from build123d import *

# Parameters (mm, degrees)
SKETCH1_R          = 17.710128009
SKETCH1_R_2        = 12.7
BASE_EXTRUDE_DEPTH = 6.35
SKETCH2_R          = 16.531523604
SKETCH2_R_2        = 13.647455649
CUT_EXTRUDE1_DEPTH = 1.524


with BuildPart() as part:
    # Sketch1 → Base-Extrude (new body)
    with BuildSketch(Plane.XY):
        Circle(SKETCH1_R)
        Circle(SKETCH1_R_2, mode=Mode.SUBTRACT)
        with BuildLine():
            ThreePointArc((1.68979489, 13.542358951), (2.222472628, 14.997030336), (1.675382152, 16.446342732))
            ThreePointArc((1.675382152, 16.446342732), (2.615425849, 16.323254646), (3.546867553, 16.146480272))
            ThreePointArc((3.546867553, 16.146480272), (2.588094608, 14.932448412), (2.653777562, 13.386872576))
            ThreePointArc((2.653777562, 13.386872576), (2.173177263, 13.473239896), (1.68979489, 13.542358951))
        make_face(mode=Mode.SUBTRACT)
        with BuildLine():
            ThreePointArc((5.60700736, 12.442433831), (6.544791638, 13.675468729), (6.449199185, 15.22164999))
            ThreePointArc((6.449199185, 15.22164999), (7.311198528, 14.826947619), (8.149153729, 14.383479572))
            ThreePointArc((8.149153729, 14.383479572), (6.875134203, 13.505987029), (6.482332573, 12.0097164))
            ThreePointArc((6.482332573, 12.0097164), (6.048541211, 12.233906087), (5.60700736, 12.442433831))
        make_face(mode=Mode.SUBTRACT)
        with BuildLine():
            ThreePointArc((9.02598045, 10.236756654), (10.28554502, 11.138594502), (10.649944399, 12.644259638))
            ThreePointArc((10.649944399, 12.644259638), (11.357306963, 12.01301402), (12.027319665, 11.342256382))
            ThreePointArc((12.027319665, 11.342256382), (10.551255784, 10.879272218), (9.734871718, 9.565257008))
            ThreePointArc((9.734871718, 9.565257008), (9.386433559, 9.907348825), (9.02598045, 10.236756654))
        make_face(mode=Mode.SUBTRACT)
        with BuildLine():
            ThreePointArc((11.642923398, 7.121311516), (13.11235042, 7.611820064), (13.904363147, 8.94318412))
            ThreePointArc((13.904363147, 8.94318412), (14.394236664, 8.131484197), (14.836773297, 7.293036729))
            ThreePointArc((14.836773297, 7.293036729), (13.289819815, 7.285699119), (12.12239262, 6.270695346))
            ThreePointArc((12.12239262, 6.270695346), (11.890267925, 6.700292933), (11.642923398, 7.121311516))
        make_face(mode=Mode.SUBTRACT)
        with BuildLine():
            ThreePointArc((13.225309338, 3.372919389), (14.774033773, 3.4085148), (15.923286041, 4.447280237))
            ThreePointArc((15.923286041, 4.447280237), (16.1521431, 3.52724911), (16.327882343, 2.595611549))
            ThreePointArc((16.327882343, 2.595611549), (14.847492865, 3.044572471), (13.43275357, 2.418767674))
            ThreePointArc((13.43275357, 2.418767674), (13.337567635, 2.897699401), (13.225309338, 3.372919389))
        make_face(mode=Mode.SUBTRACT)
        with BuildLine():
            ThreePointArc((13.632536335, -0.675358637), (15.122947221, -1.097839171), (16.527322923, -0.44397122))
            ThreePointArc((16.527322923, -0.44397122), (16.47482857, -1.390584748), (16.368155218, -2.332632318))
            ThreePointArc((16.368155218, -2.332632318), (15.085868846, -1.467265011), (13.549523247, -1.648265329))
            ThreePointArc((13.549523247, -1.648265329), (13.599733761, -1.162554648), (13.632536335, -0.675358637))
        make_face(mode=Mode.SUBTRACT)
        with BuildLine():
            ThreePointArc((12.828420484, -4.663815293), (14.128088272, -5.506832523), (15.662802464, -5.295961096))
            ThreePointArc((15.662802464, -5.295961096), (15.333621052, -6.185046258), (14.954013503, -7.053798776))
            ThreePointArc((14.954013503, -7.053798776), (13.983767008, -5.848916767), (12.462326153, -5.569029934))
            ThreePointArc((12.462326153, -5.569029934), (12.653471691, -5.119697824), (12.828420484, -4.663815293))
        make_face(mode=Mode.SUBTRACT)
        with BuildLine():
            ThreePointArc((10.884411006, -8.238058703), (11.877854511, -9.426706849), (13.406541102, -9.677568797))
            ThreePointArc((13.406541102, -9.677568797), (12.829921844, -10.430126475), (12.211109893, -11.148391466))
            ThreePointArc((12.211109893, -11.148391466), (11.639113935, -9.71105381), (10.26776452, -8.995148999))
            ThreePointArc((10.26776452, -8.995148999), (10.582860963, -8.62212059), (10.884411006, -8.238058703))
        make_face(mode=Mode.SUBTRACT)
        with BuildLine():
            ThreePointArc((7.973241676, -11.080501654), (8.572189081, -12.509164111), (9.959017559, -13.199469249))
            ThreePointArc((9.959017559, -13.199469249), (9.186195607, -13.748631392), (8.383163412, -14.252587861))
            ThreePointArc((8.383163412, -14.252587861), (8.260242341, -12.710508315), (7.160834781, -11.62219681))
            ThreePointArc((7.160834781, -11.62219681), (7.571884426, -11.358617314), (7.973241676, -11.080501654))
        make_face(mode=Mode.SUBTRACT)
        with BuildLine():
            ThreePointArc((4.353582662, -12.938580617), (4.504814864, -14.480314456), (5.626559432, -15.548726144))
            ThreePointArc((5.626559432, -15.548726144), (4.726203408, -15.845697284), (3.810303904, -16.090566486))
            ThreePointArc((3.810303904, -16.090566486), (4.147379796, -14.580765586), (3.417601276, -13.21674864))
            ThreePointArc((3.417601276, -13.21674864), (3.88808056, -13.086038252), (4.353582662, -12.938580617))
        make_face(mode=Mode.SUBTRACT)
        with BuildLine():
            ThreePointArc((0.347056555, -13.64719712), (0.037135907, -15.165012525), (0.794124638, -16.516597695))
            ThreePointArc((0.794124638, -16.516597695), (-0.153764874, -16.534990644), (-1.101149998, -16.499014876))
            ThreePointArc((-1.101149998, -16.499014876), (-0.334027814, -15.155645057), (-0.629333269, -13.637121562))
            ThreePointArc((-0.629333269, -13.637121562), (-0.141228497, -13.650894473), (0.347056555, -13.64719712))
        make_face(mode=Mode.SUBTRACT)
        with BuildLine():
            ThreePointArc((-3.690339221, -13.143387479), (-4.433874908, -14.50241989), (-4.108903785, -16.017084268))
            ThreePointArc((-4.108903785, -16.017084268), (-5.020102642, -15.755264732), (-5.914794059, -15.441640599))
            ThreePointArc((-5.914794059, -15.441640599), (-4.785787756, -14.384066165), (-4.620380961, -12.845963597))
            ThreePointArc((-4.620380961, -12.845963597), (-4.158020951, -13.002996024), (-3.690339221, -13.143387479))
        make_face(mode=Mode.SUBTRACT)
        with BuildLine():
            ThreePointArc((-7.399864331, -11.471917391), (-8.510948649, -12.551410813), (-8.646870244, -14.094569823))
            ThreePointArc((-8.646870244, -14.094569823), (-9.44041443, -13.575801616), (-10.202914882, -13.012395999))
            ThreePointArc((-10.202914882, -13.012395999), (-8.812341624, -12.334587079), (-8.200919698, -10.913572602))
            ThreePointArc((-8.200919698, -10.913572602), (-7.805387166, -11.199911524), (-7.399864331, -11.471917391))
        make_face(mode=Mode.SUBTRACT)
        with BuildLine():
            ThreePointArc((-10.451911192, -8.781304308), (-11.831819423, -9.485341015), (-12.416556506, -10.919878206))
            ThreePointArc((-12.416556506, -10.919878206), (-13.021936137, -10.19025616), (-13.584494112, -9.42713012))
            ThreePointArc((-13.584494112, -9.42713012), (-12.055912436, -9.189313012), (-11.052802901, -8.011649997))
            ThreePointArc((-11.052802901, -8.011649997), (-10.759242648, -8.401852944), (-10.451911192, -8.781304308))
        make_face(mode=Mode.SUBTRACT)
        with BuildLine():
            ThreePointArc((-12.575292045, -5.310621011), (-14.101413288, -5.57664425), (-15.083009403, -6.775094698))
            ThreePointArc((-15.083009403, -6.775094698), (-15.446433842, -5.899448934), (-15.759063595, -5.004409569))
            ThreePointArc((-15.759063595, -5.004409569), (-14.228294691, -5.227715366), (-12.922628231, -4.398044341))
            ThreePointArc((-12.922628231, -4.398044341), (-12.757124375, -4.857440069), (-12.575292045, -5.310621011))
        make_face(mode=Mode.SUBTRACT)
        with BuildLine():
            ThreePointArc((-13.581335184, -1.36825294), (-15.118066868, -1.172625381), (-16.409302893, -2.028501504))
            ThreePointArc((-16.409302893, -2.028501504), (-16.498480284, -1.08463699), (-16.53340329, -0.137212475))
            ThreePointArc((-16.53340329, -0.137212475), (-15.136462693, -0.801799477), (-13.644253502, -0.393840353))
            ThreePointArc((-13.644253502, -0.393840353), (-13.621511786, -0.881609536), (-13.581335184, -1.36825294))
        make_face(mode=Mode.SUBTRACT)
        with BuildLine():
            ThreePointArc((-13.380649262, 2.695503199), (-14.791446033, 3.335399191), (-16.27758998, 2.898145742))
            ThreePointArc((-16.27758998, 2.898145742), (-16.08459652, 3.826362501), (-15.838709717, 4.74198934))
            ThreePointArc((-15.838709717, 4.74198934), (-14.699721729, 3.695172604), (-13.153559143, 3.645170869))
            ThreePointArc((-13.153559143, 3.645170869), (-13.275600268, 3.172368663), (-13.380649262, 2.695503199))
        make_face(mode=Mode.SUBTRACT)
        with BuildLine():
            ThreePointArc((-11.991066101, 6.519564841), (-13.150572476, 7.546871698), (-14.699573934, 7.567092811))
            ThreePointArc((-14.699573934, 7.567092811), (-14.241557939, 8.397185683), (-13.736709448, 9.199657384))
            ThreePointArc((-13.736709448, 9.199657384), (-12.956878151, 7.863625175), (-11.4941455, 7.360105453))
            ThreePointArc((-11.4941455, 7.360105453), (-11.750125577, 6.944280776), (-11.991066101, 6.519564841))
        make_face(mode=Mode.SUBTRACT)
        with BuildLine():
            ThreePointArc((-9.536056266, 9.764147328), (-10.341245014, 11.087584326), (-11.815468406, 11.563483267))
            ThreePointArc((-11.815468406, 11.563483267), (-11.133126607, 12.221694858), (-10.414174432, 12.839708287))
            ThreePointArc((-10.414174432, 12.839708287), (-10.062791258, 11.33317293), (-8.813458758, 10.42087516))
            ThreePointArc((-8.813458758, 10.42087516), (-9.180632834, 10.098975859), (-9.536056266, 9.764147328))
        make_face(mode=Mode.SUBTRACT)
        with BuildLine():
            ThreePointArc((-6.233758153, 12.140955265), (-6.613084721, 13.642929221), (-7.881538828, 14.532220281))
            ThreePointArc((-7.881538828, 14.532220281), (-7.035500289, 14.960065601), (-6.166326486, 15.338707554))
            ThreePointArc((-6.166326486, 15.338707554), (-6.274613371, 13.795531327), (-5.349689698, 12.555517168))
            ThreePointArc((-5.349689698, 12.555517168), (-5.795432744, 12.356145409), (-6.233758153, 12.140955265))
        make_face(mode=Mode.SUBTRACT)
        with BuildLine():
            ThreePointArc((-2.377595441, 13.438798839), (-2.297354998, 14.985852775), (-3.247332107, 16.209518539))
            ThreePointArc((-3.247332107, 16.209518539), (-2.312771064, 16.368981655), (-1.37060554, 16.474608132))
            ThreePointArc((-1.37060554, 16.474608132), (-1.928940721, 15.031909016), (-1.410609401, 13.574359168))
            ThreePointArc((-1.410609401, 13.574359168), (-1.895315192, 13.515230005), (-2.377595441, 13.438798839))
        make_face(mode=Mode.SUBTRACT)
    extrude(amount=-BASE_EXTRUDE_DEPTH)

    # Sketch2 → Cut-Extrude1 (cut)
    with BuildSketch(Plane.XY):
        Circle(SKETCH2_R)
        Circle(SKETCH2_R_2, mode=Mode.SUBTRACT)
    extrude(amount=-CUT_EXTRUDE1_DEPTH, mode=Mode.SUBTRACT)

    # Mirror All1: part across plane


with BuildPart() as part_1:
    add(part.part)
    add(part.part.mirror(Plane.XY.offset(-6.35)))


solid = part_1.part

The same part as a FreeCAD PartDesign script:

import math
import FreeCAD as App
import Part
import Sketcher
from FreeCAD import Vector
Q = App.Units.Quantity

doc = App.newDocument("Part")
body = doc.addObject("PartDesign::Body", "Body")

# Sketch on XY plane
sketch1 = body.newObject("Sketcher::SketchObject", "Sketch")
sketch1.AttachmentSupport = (doc.getObject("XY_Plane"), [""])
sketch1.MapMode = "FlatFace"
sketch1.addGeometry([
    Part.Circle(Vector(0, 0, 0), Vector(0, 0, 1), 17.7),  # 0
    Part.ArcOfCircle(Part.Circle(Vector(0, 0, 0), Vector(0, 0, 1), 13.6), math.radians(-126.93), math.radians(-122.83)),  # 1
    Part.ArcOfCircle(Part.Circle(Vector(-6.5, -13.5, 0), Vector(0, 0, 1), 2.2), math.radians(114), math.radians(195)),  # 2
    Part.ArcOfCircle(Part.Circle(Vector(0, 0, 0), Vector(0, 0, 1), 16.5), math.radians(-128.1), math.radians(-121.53)),  # 3
    Part.ArcOfCircle(Part.Circle(Vector(-10.4, -10.8, 0), Vector(0, 0, 1), 2.2), math.radians(-84), math.radians(-3)),  # 4
    Part.ArcOfCircle(Part.Circle(Vector(0, 0, 0), Vector(0, 0, 1), 13.6), math.radians(-144.07), math.radians(-139.97)),  # 5
    Part.ArcOfCircle(Part.Circle(Vector(-10.2, -11, 0), Vector(0, 0, 1), 2.2), math.radians(97), math.radians(178)),  # 6
    Part.ArcOfCircle(Part.Circle(Vector(0, 0, 0), Vector(0, 0, 1), 16.5), math.radians(-145.25), math.radians(-138.67)),  # 7
    Part.ArcOfCircle(Part.Circle(Vector(-13.1, -7.2, 0), Vector(0, 0, 1), 2.2), math.radians(-102), math.radians(-20)),  # 8
    Part.ArcOfCircle(Part.Circle(Vector(0, 0, 0), Vector(0, 0, 1), 13.6), math.radians(-109.78), math.radians(-105.68)),  # 9
    Part.ArcOfCircle(Part.Circle(Vector(-2.2, -14.8, 0), Vector(0, 0, 1), 2.2), math.radians(131), math.radians(213)),  # 10
    Part.ArcOfCircle(Part.Circle(Vector(0, 0, 0), Vector(0, 0, 1), 16.5), math.radians(-110.96), math.radians(-104.39)),  # 11
    Part.ArcOfCircle(Part.Circle(Vector(-6.8, -13.4, 0), Vector(0, 0, 1), 2.2), math.radians(-67), math.radians(14)),  # 12
    Part.ArcOfCircle(Part.Circle(Vector(0, 0, 0), Vector(0, 0, 1), 13.6), math.radians(-92.64), math.radians(-88.54)),  # 13
    Part.ArcOfCircle(Part.Circle(Vector(2.2, -14.8, 0), Vector(0, 0, 1), 2.2), math.radians(148), math.radians(230)),  # 14
    Part.ArcOfCircle(Part.Circle(Vector(0, 0, 0), Vector(0, 0, 1), 16.5), math.radians(-93.82), math.radians(-87.25)),  # 15
    Part.ArcOfCircle(Part.Circle(Vector(-2.5, -14.8, 0), Vector(0, 0, 1), 2.2), math.radians(-50), math.radians(31)),  # 16
    Part.ArcOfCircle(Part.Circle(Vector(0, 0, 0), Vector(0, 0, 1), 13.6), math.radians(-161.21), math.radians(-157.11)),  # 17
    Part.ArcOfCircle(Part.Circle(Vector(-13, -7.5, 0), Vector(0, 0, 1), 2.2), math.radians(79), math.radians(161)),  # 18
    Part.ArcOfCircle(Part.Circle(Vector(0, 0, 0), Vector(0, 0, 1), 16.5), math.radians(-162.39), math.radians(-155.82)),  # 19
    Part.ArcOfCircle(Part.Circle(Vector(-14.7, -3.1, 0), Vector(0, 0, 1), 2.2), math.radians(-119), math.radians(-37)),  # 20
    Part.ArcOfCircle(Part.Circle(Vector(0, 0, 0), Vector(0, 0, 1), 13.6), math.radians(-178.36), math.radians(-174.26)),  # 21
    Part.ArcOfCircle(Part.Circle(Vector(-14.6, -3.3, 0), Vector(0, 0, 1), 2.2), math.radians(62), math.radians(144)),  # 22
    Part.ArcOfCircle(Part.Circle(Vector(0, 0, 0), Vector(0, 0, 1), 16.5), math.radians(-179.53), math.radians(-172.96)),  # 23
    Part.ArcOfCircle(Part.Circle(Vector(-14.9, 1.4, 0), Vector(0, 0, 1), 2.2), math.radians(-136), math.radians(-54)),  # 24
    Part.ArcOfCircle(Part.Circle(Vector(0, 0, 0), Vector(0, 0, 1), 13.6), math.radians(-75.5), math.radians(-71.4)),  # 25
    Part.ArcOfCircle(Part.Circle(Vector(6.5, -13.5, 0), Vector(0, 0, 1), 2.2), math.radians(165), math.radians(247)),  # 26
    Part.ArcOfCircle(Part.Circle(Vector(0, 0, 0), Vector(0, 0, 1), 16.5), math.radians(-76.67), math.radians(-70.1)),  # 27
    Part.ArcOfCircle(Part.Circle(Vector(1.9, -14.9, 0), Vector(0, 0, 1), 2.2), math.radians(-33), math.radians(49)),  # 28
    Part.ArcOfCircle(Part.Circle(Vector(0, 0, 0), Vector(0, 0, 1), 13.6), math.radians(-58.36), math.radians(-54.26)),  # 29
    Part.ArcOfCircle(Part.Circle(Vector(10.2, -11, 0), Vector(0, 0, 1), 2.2), math.radians(-178), math.radians(-96)),  # 30
    Part.ArcOfCircle(Part.Circle(Vector(0, 0, 0), Vector(0, 0, 1), 16.5), math.radians(-59.53), math.radians(-52.96)),  # 31
    Part.ArcOfCircle(Part.Circle(Vector(6.2, -13.6, 0), Vector(0, 0, 1), 2.2), math.radians(-16), math.radians(66)),  # 32
    Part.ArcOfCircle(Part.Circle(Vector(0, 0, 0), Vector(0, 0, 1), 13.6), math.radians(-41.21), math.radians(-37.11)),  # 33
    Part.ArcOfCircle(Part.Circle(Vector(13, -7.5, 0), Vector(0, 0, 1), 2.2), math.radians(-161), math.radians(-79)),  # 34
    Part.ArcOfCircle(Part.Circle(Vector(0, 0, 0), Vector(0, 0, 1), 16.5), math.radians(-42.39), math.radians(-35.82)),  # 35
    Part.ArcOfCircle(Part.Circle(Vector(10, -11.2, 0), Vector(0, 0, 1), 2.2), math.radians(1), math.radians(83)),  # 36
    Part.ArcOfCircle(Part.Circle(Vector(0, 0, 0), Vector(0, 0, 1), 13.6), math.radians(-24.07), math.radians(-19.97)),  # 37
    Part.ArcOfCircle(Part.Circle(Vector(14.6, -3.3, 0), Vector(0, 0, 1), 2.2), math.radians(-143), math.radians(-62)),  # 38
    Part.ArcOfCircle(Part.Circle(Vector(0, 0, 0), Vector(0, 0, 1), 16.5), math.radians(-25.25), math.radians(-18.67)),  # 39
    Part.ArcOfCircle(Part.Circle(Vector(12.8, -7.8, 0), Vector(0, 0, 1), 2.2), math.radians(18), math.radians(100)),  # 40
    Part.ArcOfCircle(Part.Circle(Vector(0, 0, 0), Vector(0, 0, 1), 13.6), math.radians(-6.93), math.radians(-2.83)),  # 41
    Part.ArcOfCircle(Part.Circle(Vector(14.9, 1.1, 0), Vector(0, 0, 1), 2.2), math.radians(-126), math.radians(-45)),  # 42
    Part.ArcOfCircle(Part.Circle(Vector(0, 0, 0), Vector(0, 0, 1), 16.5), math.radians(-8.1), math.radians(-1.53)),  # 43
    Part.ArcOfCircle(Part.Circle(Vector(14.6, -3.6, 0), Vector(0, 0, 1), 2.2), math.radians(36), math.radians(117)),  # 44
    Part.ArcOfCircle(Part.Circle(Vector(0, 0, 0), Vector(0, 0, 1), 13.6), math.radians(164.5), math.radians(168.6)),  # 45
    Part.ArcOfCircle(Part.Circle(Vector(-14.9, 1.1, 0), Vector(0, 0, 1), 2.2), math.radians(45), math.radians(127)),  # 46
    Part.ArcOfCircle(Part.Circle(Vector(0, 0, 0), Vector(0, 0, 1), 16.5), math.radians(163.33), math.radians(169.9)),  # 47
    Part.ArcOfCircle(Part.Circle(Vector(-13.9, 5.8, 0), Vector(0, 0, 1), 2.2), math.radians(-153), math.radians(-71)),  # 48
    Part.ArcOfCircle(Part.Circle(Vector(0, 0, 0), Vector(0, 0, 1), 13.6), math.radians(147.36), math.radians(151.46)),  # 49
    Part.ArcOfCircle(Part.Circle(Vector(-14, 5.5, 0), Vector(0, 0, 1), 2.2), math.radians(28), math.radians(110)),  # 50
    Part.ArcOfCircle(Part.Circle(Vector(0, 0, 0), Vector(0, 0, 1), 16.5), math.radians(146.18), math.radians(152.75)),  # 51
    Part.ArcOfCircle(Part.Circle(Vector(-11.5, 9.6, 0), Vector(0, 0, 1), 2.2), math.radians(-170), math.radians(-89)),  # 52
    Part.ArcOfCircle(Part.Circle(Vector(0, 0, 0), Vector(0, 0, 1), 13.6), math.radians(130.22), math.radians(134.32)),  # 53
    Part.ArcOfCircle(Part.Circle(Vector(-11.7, 9.3, 0), Vector(0, 0, 1), 2.2), math.radians(11), math.radians(93)),  # 54
    Part.ArcOfCircle(Part.Circle(Vector(0, 0, 0), Vector(0, 0, 1), 16.5), math.radians(129.04), math.radians(135.61)),  # 55
    Part.ArcOfCircle(Part.Circle(Vector(-8.2, 12.6, 0), Vector(0, 0, 1), 2.2), math.radians(173), math.radians(254)),  # 56
    Part.ArcOfCircle(Part.Circle(Vector(0, 0, 0), Vector(0, 0, 1), 13.6), math.radians(113.07), math.radians(117.17)),  # 57
    Part.ArcOfCircle(Part.Circle(Vector(-8.4, 12.4, 0), Vector(0, 0, 1), 2.2), math.radians(-6), math.radians(75)),  # 58
    Part.ArcOfCircle(Part.Circle(Vector(0, 0, 0), Vector(0, 0, 1), 16.5), math.radians(111.9), math.radians(118.47)),  # 59
    Part.ArcOfCircle(Part.Circle(Vector(-4.1, 14.4, 0), Vector(0, 0, 1), 2.2), math.radians(156), math.radians(237)),  # 60
    Part.ArcOfCircle(Part.Circle(Vector(0, 0, 0), Vector(0, 0, 1), 13.6), math.radians(95.93), math.radians(100.03)),  # 61
    Part.ArcOfCircle(Part.Circle(Vector(-4.4, 14.3, 0), Vector(0, 0, 1), 2.2), math.radians(-23), math.radians(58)),  # 62
    Part.ArcOfCircle(Part.Circle(Vector(0, 0, 0), Vector(0, 0, 1), 16.5), math.radians(94.75), math.radians(101.33)),  # 63
    Part.ArcOfCircle(Part.Circle(Vector(0.3, 15, 0), Vector(0, 0, 1), 2.2), math.radians(138), math.radians(220)),  # 64
    Part.Circle(Vector(0, 0, 0), Vector(0, 0, 1), 12.7),  # 65
    Part.ArcOfCircle(Part.Circle(Vector(0, 0, 0), Vector(0, 0, 1), 13.6), math.radians(10.22), math.radians(14.32)),  # 66
    Part.ArcOfCircle(Part.Circle(Vector(14, 5.5, 0), Vector(0, 0, 1), 2.2), math.radians(-109), math.radians(-27)),  # 67
    Part.ArcOfCircle(Part.Circle(Vector(0, 0, 0), Vector(0, 0, 1), 16.5), math.radians(9.04), math.radians(15.61)),  # 68
    Part.ArcOfCircle(Part.Circle(Vector(15, 0.8, 0), Vector(0, 0, 1), 2.2), math.radians(53), math.radians(134)),  # 69
    Part.ArcOfCircle(Part.Circle(Vector(0, 0, 0), Vector(0, 0, 1), 13.6), math.radians(27.36), math.radians(31.46)),  # 70
    Part.ArcOfCircle(Part.Circle(Vector(11.7, 9.3, 0), Vector(0, 0, 1), 2.2), math.radians(-92), math.radians(-10)),  # 71
    Part.ArcOfCircle(Part.Circle(Vector(0, 0, 0), Vector(0, 0, 1), 16.5), math.radians(26.18), math.radians(32.75)),  # 72
    Part.ArcOfCircle(Part.Circle(Vector(14.1, 5.2, 0), Vector(0, 0, 1), 2.2), math.radians(70), math.radians(151)),  # 73
    Part.ArcOfCircle(Part.Circle(Vector(0, 0, 0), Vector(0, 0, 1), 13.6), math.radians(78.79), math.radians(82.89)),  # 74
    Part.ArcOfCircle(Part.Circle(Vector(0, 15, 0), Vector(0, 0, 1), 2.2), math.radians(-41), math.radians(41)),  # 75
    Part.ArcOfCircle(Part.Circle(Vector(0, 0, 0), Vector(0, 0, 1), 16.5), math.radians(77.61), math.radians(84.18)),  # 76
    Part.ArcOfCircle(Part.Circle(Vector(4.7, 14.2, 0), Vector(0, 0, 1), 2.2), math.radians(121), math.radians(203)),  # 77
    Part.ArcOfCircle(Part.Circle(Vector(0, 0, 0), Vector(0, 0, 1), 13.6), math.radians(61.64), math.radians(65.74)),  # 78
    Part.ArcOfCircle(Part.Circle(Vector(4.4, 14.3, 0), Vector(0, 0, 1), 2.2), math.radians(-58), math.radians(24)),  # 79
    Part.ArcOfCircle(Part.Circle(Vector(0, 0, 0), Vector(0, 0, 1), 16.5), math.radians(60.47), math.radians(67.04)),  # 80
    Part.ArcOfCircle(Part.Circle(Vector(8.7, 12.2, 0), Vector(0, 0, 1), 2.2), math.radians(104), math.radians(186)),  # 81
    Part.ArcOfCircle(Part.Circle(Vector(0, 0, 0), Vector(0, 0, 1), 13.6), math.radians(44.5), math.radians(48.6)),  # 82
    Part.ArcOfCircle(Part.Circle(Vector(8.4, 12.4, 0), Vector(0, 0, 1), 2.2), math.radians(-75), math.radians(7)),  # 83
    Part.ArcOfCircle(Part.Circle(Vector(0, 0, 0), Vector(0, 0, 1), 16.5), math.radians(43.33), math.radians(49.9)),  # 84
    Part.ArcOfCircle(Part.Circle(Vector(11.9, 9.1, 0), Vector(0, 0, 1), 2.2), math.radians(87), math.radians(169)),  # 85
], False)
sketch1.addConstraint([
    Sketcher.Constraint("Coincident", 1, 2, 2, 1),
    Sketcher.Constraint("Coincident", 2, 2, 3, 2),
    Sketcher.Constraint("Coincident", 3, 1, 4, 1),
    Sketcher.Constraint("Coincident", 4, 2, 1, 1),
    Sketcher.Constraint("Coincident", 5, 2, 6, 1),
    Sketcher.Constraint("Coincident", 6, 2, 7, 2),
    Sketcher.Constraint("Coincident", 7, 1, 8, 1),
    Sketcher.Constraint("Coincident", 8, 2, 5, 1),
    Sketcher.Constraint("Coincident", 9, 2, 10, 1),
    Sketcher.Constraint("Coincident", 10, 2, 11, 2),
    Sketcher.Constraint("Coincident", 11, 1, 12, 1),
    Sketcher.Constraint("Coincident", 12, 2, 9, 1),
    Sketcher.Constraint("Coincident", 13, 2, 14, 1),
    Sketcher.Constraint("Coincident", 14, 2, 15, 2),
    Sketcher.Constraint("Coincident", 15, 1, 16, 1),
    Sketcher.Constraint("Coincident", 16, 2, 13, 1),
    Sketcher.Constraint("Coincident", 17, 2, 18, 1),
    Sketcher.Constraint("Coincident", 18, 2, 19, 2),
    Sketcher.Constraint("Coincident", 19, 1, 20, 1),
    Sketcher.Constraint("Coincident", 20, 2, 17, 1),
    Sketcher.Constraint("Coincident", 21, 2, 22, 1),
    Sketcher.Constraint("Coincident", 22, 2, 23, 2),
    Sketcher.Constraint("Coincident", 23, 1, 24, 1),
    Sketcher.Constraint("Coincident", 24, 2, 21, 1),
    Sketcher.Constraint("Coincident", 25, 2, 26, 1),
    Sketcher.Constraint("Coincident", 26, 2, 27, 2),
    Sketcher.Constraint("Coincident", 27, 1, 28, 1),
    Sketcher.Constraint("Coincident", 28, 2, 25, 1),
    Sketcher.Constraint("Coincident", 29, 2, 30, 1),
    Sketcher.Constraint("Coincident", 30, 2, 31, 2),
    Sketcher.Constraint("Coincident", 31, 1, 32, 1),
    Sketcher.Constraint("Coincident", 32, 2, 29, 1),
    Sketcher.Constraint("Coincident", 33, 2, 34, 1),
    Sketcher.Constraint("Coincident", 34, 2, 35, 2),
    Sketcher.Constraint("Coincident", 35, 1, 36, 1),
    Sketcher.Constraint("Coincident", 36, 2, 33, 1),
    Sketcher.Constraint("Coincident", 37, 2, 38, 1),
    Sketcher.Constraint("Coincident", 38, 2, 39, 2),
    Sketcher.Constraint("Coincident", 39, 1, 40, 1),
    Sketcher.Constraint("Coincident", 40, 2, 37, 1),
    Sketcher.Constraint("Coincident", 41, 2, 42, 1),
    Sketcher.Constraint("Coincident", 42, 2, 43, 2),
    Sketcher.Constraint("Coincident", 43, 1, 44, 1),
    Sketcher.Constraint("Coincident", 44, 2, 41, 1),
    Sketcher.Constraint("Coincident", 45, 2, 46, 1),
    Sketcher.Constraint("Coincident", 46, 2, 47, 2),
    Sketcher.Constraint("Coincident", 47, 1, 48, 1),
    Sketcher.Constraint("Coincident", 48, 2, 45, 1),
    Sketcher.Constraint("Coincident", 49, 2, 50, 1),
    Sketcher.Constraint("Coincident", 50, 2, 51, 2),
    Sketcher.Constraint("Coincident", 51, 1, 52, 1),
    Sketcher.Constraint("Coincident", 52, 2, 49, 1),
    Sketcher.Constraint("Coincident", 53, 2, 54, 1),
    Sketcher.Constraint("Coincident", 54, 2, 55, 2),
    Sketcher.Constraint("Coincident", 55, 1, 56, 1),
    Sketcher.Constraint("Coincident", 56, 2, 53, 1),
    Sketcher.Constraint("Coincident", 57, 2, 58, 1),
    Sketcher.Constraint("Coincident", 58, 2, 59, 2),
    Sketcher.Constraint("Coincident", 59, 1, 60, 1),
    Sketcher.Constraint("Coincident", 60, 2, 57, 1),
    Sketcher.Constraint("Coincident", 61, 2, 62, 1),
    Sketcher.Constraint("Coincident", 62, 2, 63, 2),
    Sketcher.Constraint("Coincident", 63, 1, 64, 1),
    Sketcher.Constraint("Coincident", 64, 2, 61, 1),
    Sketcher.Constraint("Coincident", 66, 2, 67, 1),
    Sketcher.Constraint("Coincident", 67, 2, 68, 2),
    Sketcher.Constraint("Coincident", 68, 1, 69, 1),
    Sketcher.Constraint("Coincident", 69, 2, 66, 1),
    Sketcher.Constraint("Coincident", 70, 2, 71, 1),
    Sketcher.Constraint("Coincident", 71, 2, 72, 2),
    Sketcher.Constraint("Coincident", 72, 1, 73, 1),
    Sketcher.Constraint("Coincident", 73, 2, 70, 1),
    Sketcher.Constraint("Coincident", 74, 2, 75, 1),
    Sketcher.Constraint("Coincident", 75, 2, 76, 2),
    Sketcher.Constraint("Coincident", 76, 1, 77, 1),
    Sketcher.Constraint("Coincident", 77, 2, 74, 1),
    Sketcher.Constraint("Coincident", 78, 2, 79, 1),
    Sketcher.Constraint("Coincident", 79, 2, 80, 2),
    Sketcher.Constraint("Coincident", 80, 1, 81, 1),
    Sketcher.Constraint("Coincident", 81, 2, 78, 1),
    Sketcher.Constraint("Coincident", 82, 2, 83, 1),
    Sketcher.Constraint("Coincident", 83, 2, 84, 2),
    Sketcher.Constraint("Coincident", 84, 1, 85, 1),
    Sketcher.Constraint("Coincident", 85, 2, 82, 1),
    Sketcher.Constraint("Coincident", 0, 3, -1, 1),
    Sketcher.Constraint("Coincident", 65, 3, -1, 1),
    Sketcher.Constraint("Coincident", 74, 3, -1, 1),
    Sketcher.Constraint("Coincident", 76, 3, -1, 1),
    Sketcher.Constraint("Coincident", 3, 3, 1, 3),
    Sketcher.Constraint("Coincident", 7, 3, 5, 3),
    Sketcher.Constraint("Coincident", 11, 3, 9, 3),
    Sketcher.Constraint("Coincident", 15, 3, 13, 3),
    Sketcher.Constraint("Coincident", 19, 3, 17, 3),
    Sketcher.Constraint("Coincident", 23, 3, 21, 3),
    Sketcher.Constraint("Coincident", 27, 3, 25, 3),
    Sketcher.Constraint("Coincident", 31, 3, 29, 3),
    Sketcher.Constraint("Coincident", 35, 3, 33, 3),
    Sketcher.Constraint("Coincident", 39, 3, 37, 3),
    Sketcher.Constraint("Coincident", 43, 3, 41, 3),
    Sketcher.Constraint("Coincident", 47, 3, 45, 3),
    Sketcher.Constraint("Coincident", 51, 3, 49, 3),
    Sketcher.Constraint("Coincident", 55, 3, 53, 3),
    Sketcher.Constraint("Coincident", 59, 3, 57, 3),
    Sketcher.Constraint("Coincident", 63, 3, 61, 3),
    Sketcher.Constraint("Coincident", 68, 3, 66, 3),
    Sketcher.Constraint("Coincident", 72, 3, 70, 3),
    Sketcher.Constraint("Coincident", 80, 3, 78, 3),
    Sketcher.Constraint("Coincident", 84, 3, 82, 3),
    Sketcher.Constraint("Equal", 2, 4),
    Sketcher.Constraint("Equal", 1, 5),
    Sketcher.Constraint("Equal", 4, 6),
    Sketcher.Constraint("Equal", 3, 7),
    Sketcher.Constraint("Equal", 6, 8),
    Sketcher.Constraint("Equal", 5, 9),
    Sketcher.Constraint("Equal", 8, 10),
    Sketcher.Constraint("Equal", 7, 11),
    Sketcher.Constraint("Equal", 10, 12),
    Sketcher.Constraint("Equal", 9, 13),
    Sketcher.Constraint("Equal", 12, 14),
    Sketcher.Constraint("Equal", 11, 15),
    Sketcher.Constraint("Equal", 14, 16),
    Sketcher.Constraint("Equal", 13, 17),
    Sketcher.Constraint("Equal", 16, 18),
    Sketcher.Constraint("Equal", 15, 19),
    Sketcher.Constraint("Equal", 18, 20),
    Sketcher.Constraint("Equal", 17, 21),
    Sketcher.Constraint("Equal", 20, 22),
    Sketcher.Constraint("Equal", 19, 23),
    Sketcher.Constraint("Equal", 22, 24),
    Sketcher.Constraint("Equal", 21, 25),
    Sketcher.Constraint("Equal", 24, 26),
    Sketcher.Constraint("Equal", 23, 27),
    Sketcher.Constraint("Equal", 26, 28),
    Sketcher.Constraint("Equal", 25, 29),
    Sketcher.Constraint("Equal", 28, 30),
    Sketcher.Constraint("Equal", 27, 31),
    Sketcher.Constraint("Equal", 30, 32),
    Sketcher.Constraint("Equal", 29, 33),
    Sketcher.Constraint("Equal", 32, 34),
    Sketcher.Constraint("Equal", 31, 35),
    Sketcher.Constraint("Equal", 34, 36),
    Sketcher.Constraint("Equal", 33, 37),
    Sketcher.Constraint("Equal", 36, 38),
    Sketcher.Constraint("Equal", 35, 39),
    Sketcher.Constraint("Equal", 38, 40),
    Sketcher.Constraint("Equal", 37, 41),
    Sketcher.Constraint("Equal", 40, 42),
    Sketcher.Constraint("Equal", 39, 43),
    Sketcher.Constraint("Equal", 42, 44),
    Sketcher.Constraint("Equal", 41, 45),
    Sketcher.Constraint("Equal", 44, 46),
    Sketcher.Constraint("Equal", 43, 47),
    Sketcher.Constraint("Equal", 46, 48),
    Sketcher.Constraint("Equal", 45, 49),
    Sketcher.Constraint("Equal", 48, 50),
    Sketcher.Constraint("Equal", 47, 51),
    Sketcher.Constraint("Equal", 50, 52),
    Sketcher.Constraint("Equal", 49, 53),
    Sketcher.Constraint("Equal", 52, 54),
    Sketcher.Constraint("Equal", 51, 55),
    Sketcher.Constraint("Equal", 54, 56),
    Sketcher.Constraint("Equal", 53, 57),
    Sketcher.Constraint("Equal", 56, 58),
    Sketcher.Constraint("Equal", 55, 59),
    Sketcher.Constraint("Equal", 58, 60),
    Sketcher.Constraint("Equal", 57, 61),
    Sketcher.Constraint("Equal", 60, 62),
    Sketcher.Constraint("Equal", 59, 63),
    Sketcher.Constraint("Equal", 62, 64),
    Sketcher.Constraint("Equal", 61, 66),
    Sketcher.Constraint("Equal", 64, 67),
    Sketcher.Constraint("Equal", 63, 68),
    Sketcher.Constraint("Equal", 67, 69),
    Sketcher.Constraint("Equal", 66, 70),
    Sketcher.Constraint("Equal", 69, 71),
    Sketcher.Constraint("Equal", 68, 72),
    Sketcher.Constraint("Equal", 71, 73),
    Sketcher.Constraint("Equal", 70, 74),
    Sketcher.Constraint("Equal", 73, 75),
    Sketcher.Constraint("Equal", 72, 76),
    Sketcher.Constraint("Equal", 75, 77),
    Sketcher.Constraint("Equal", 74, 78),
    Sketcher.Constraint("Equal", 77, 79),
    Sketcher.Constraint("Equal", 76, 80),
    Sketcher.Constraint("Equal", 79, 81),
    Sketcher.Constraint("Equal", 78, 82),
    Sketcher.Constraint("Equal", 81, 83),
    Sketcher.Constraint("Equal", 80, 84),
    Sketcher.Constraint("Equal", 83, 85),
    Sketcher.Constraint("PointOnObject", 75, 3, -2),
    Sketcher.Constraint("Diameter", 65, Q("1 in")),
    Sketcher.Constraint("Radius", 2, Q("0.0875 in")),
    Sketcher.Constraint("DistanceY", -1, 1, 75, 3, Q("0.59 in")),
    Sketcher.Constraint("Radius", 27, 16.531458),
    Sketcher.Constraint("Radius", 66, 13.647378),
    Sketcher.Constraint("Diameter", 0, 35.420256),
    Sketcher.Constraint("DistanceX", 12, 3, -1, 1, 6.774701),
    Sketcher.Constraint("DistanceY", 49, 3, -1, 1, 0.001),
    Sketcher.Constraint("DistanceY", -1, 1, 50, 3, 5.474),
    Sketcher.Constraint("DistanceY", 78, 3, -1, 1, 0.000201),
    Sketcher.Constraint("DistanceY", -1, 1, 81, 3, 12.228801),
    Sketcher.Constraint("DistanceY", 22, 2, -1, 1, 2.028502),
    Sketcher.Constraint("DistanceX", -1, 1, 28, 2, 3.417601),
    Sketcher.Constraint("DistanceY", 29, 2, -1, 1, 11.080502),
    Sketcher.Constraint("DistanceY", 39, 1, -1, 1, 7.053799),
    Sketcher.Constraint("DistanceY", -1, 1, 61, 2, 13.438799),
    Sketcher.Constraint("DistanceX", -1, 1, 79, 2, 6.449199),
    Sketcher.Constraint("DistanceY", 1, 3, -1, 1, 0.003848),
    Sketcher.Constraint("DistanceX", 5, 3, -1, 1, 0.00206),
    Sketcher.Constraint("DistanceX", 6, 3, -1, 1, 10.195129),
    Sketcher.Constraint("DistanceY", 6, 3, -1, 1, 10.98892),
    Sketcher.Constraint("DistanceX", 8, 3, -1, 1, 13.140511),
    Sketcher.Constraint("DistanceY", 8, 3, -1, 1, 7.249428),
    Sketcher.Constraint("DistanceX", 10, 3, -1, 1, 2.234581),
    Sketcher.Constraint("DistanceX", -1, 1, 14, 3, 2.233141),
    Sketcher.Constraint("DistanceY", 16, 3, -1, 1, 14.79412),
    Sketcher.Constraint("DistanceX", 17, 3, -1, 1, 0.002368),
    Sketcher.Constraint("DistanceY", 22, 3, -1, 1, 3.336922),
    Sketcher.Constraint("DistanceY", 26, 3, -1, 1, 13.506082),
    Sketcher.Constraint("DistanceY", 27, 3, -1, 1, 0.004162),
    Sketcher.Constraint("DistanceY", 28, 3, -1, 1, 14.88167),
    Sketcher.Constraint("DistanceX", -1, 1, 32, 3, 6.24473),
    Sketcher.Constraint("DistanceX", -1, 1, 33, 3, 0.001281),
    Sketcher.Constraint("DistanceX", -1, 1, 34, 3, 12.979538),
    Sketcher.Constraint("DistanceX", -1, 1, 37, 3, 0.001611),
    Sketcher.Constraint("DistanceY", 37, 3, -1, 1, 0.002928),
    Sketcher.Constraint("DistanceX", -1, 1, 38, 3, 14.611881),
    Sketcher.Constraint("DistanceY", 40, 3, -1, 1, 7.758149),
    Sketcher.Constraint("DistanceY", 41, 3, -1, 1, 0.00231),
    Sketcher.Constraint("DistanceX", -1, 1, 44, 3, 14.561479),
    Sketcher.Constraint("DistanceY", 45, 3, -1, 1, 0.001589),
    Sketcher.Constraint("DistanceX", 49, 3, -1, 1, 0.002191),
    Sketcher.Constraint("DistanceX", 52, 3, -1, 1, 11.547339),
    Sketcher.Constraint("DistanceY", -1, 1, 52, 3, 9.581969),
    Sketcher.Constraint("DistanceY", 53, 3, -1, 1, 0.00051),
    Sketcher.Constraint("DistanceX", 54, 3, -1, 1, 11.71831),
    Sketcher.Constraint("DistanceX", 57, 3, -1, 1, 0.00125),
    Sketcher.Constraint("DistanceY", 57, 3, -1, 1, 0.000161),
    Sketcher.Constraint("DistanceX", 60, 3, -1, 1, 4.14202),
    Sketcher.Constraint("DistanceY", -1, 1, 60, 3, 14.421272),
    Sketcher.Constraint("DistanceX", 62, 3, -1, 1, 4.417838),
    Sketcher.Constraint("DistanceX", -1, 1, 66, 3, 0.00173),
    Sketcher.Constraint("DistanceX", -1, 1, 70, 3, 0.001511),
    Sketcher.Constraint("DistanceY", -1, 1, 71, 3, 9.342542),
    Sketcher.Constraint("DistanceX", -1, 1, 73, 3, 14.073179),
    Sketcher.Constraint("DistanceY", -1, 1, 73, 3, 5.20583),
    Sketcher.Constraint("DistanceX", -1, 1, 77, 3, 4.702618),
    Sketcher.Constraint("DistanceX", -1, 1, 81, 3, 8.694008),
    Sketcher.Constraint("DistanceY", 82, 3, -1, 1, 0.000571),
    Sketcher.Constraint("DistanceX", -1, 1, 83, 3, 8.443038),
    Sketcher.Constraint("DistanceX", 2, 2, -1, 1, 8.64687),
    Sketcher.Constraint("DistanceY", 2, 2, -1, 1, 14.09457),
    Sketcher.Constraint("DistanceX", 4, 2, -1, 1, 8.20092),
    Sketcher.Constraint("DistanceX", 5, 2, -1, 1, 10.451911),
    Sketcher.Constraint("DistanceX", 9, 2, -1, 1, 3.690339),
    Sketcher.Constraint("DistanceY", 11, 1, -1, 1, 15.441641),
    Sketcher.Constraint("DistanceX", 12, 2, -1, 1, 4.620381),
    Sketcher.Constraint("DistanceX", 15, 1, -1, 1, 1.10115),
    Sketcher.Constraint("DistanceY", 16, 2, -1, 1, 13.637122),
    Sketcher.Constraint("DistanceY", 17, 2, -1, 1, 5.310621),
    Sketcher.Constraint("DistanceX", 18, 2, -1, 1, 15.083009),
    Sketcher.Constraint("DistanceY", 19, 1, -1, 1, 5.00441),
    Sketcher.Constraint("DistanceX", 20, 2, -1, 1, 12.922628),
    Sketcher.Constraint("DistanceY", 24, 2, -1, 1, 0.39384),
    Sketcher.Constraint("DistanceY", 25, 2, -1, 1, 12.938581),
    Sketcher.Constraint("DistanceX", -1, 1, 26, 2, 5.626559),
    Sketcher.Constraint("DistanceX", -1, 1, 29, 2, 7.973242),
    Sketcher.Constraint("DistanceY", 30, 2, -1, 1, 13.199469),
    Sketcher.Constraint("DistanceX", -1, 1, 33, 2, 10.884411),
    Sketcher.Constraint("DistanceY", 33, 2, -1, 1, 8.238059),
    Sketcher.Constraint("DistanceX", -1, 1, 35, 1, 12.21111),
    Sketcher.Constraint("DistanceY", 36, 2, -1, 1, 8.995149),
    Sketcher.Constraint("DistanceX", -1, 1, 37, 2, 12.82842),
    Sketcher.Constraint("DistanceY", 41, 2, -1, 1, 0.675359),
    Sketcher.Constraint("DistanceY", 42, 2, -1, 1, 0.443971),
    Sketcher.Constraint("DistanceX", 45, 2, -1, 1, 13.380649),
    Sketcher.Constraint("DistanceX", 46, 2, -1, 1, 16.27759),
    Sketcher.Constraint("DistanceX", 47, 1, -1, 1, 15.83871),
    Sketcher.Constraint("DistanceY", -1, 1, 47, 1, 4.741989),
    Sketcher.Constraint("DistanceX", 48, 2, -1, 1, 13.153559),
    Sketcher.Constraint("DistanceX", 54, 2, -1, 1, 11.815468),
    Sketcher.Constraint("DistanceY", -1, 1, 55, 1, 12.839708),
    Sketcher.Constraint("DistanceX", 56, 2, -1, 1, 8.813459),
    Sketcher.Constraint("DistanceX", 57, 2, -1, 1, 6.233758),
    Sketcher.Constraint("DistanceX", 58, 2, -1, 1, 7.881539),
    Sketcher.Constraint("DistanceY", -1, 1, 62, 2, 16.209519),
    Sketcher.Constraint("DistanceY", -1, 1, 63, 1, 16.474608),
    Sketcher.Constraint("DistanceX", 64, 2, -1, 1, 1.410609),
    Sketcher.Constraint("DistanceY", -1, 1, 64, 2, 13.574359),
    Sketcher.Constraint("DistanceX", -1, 1, 66, 2, 13.225309),
    Sketcher.Constraint("DistanceY", -1, 1, 66, 2, 3.372919),
    Sketcher.Constraint("DistanceY", -1, 1, 67, 2, 4.44728),
    Sketcher.Constraint("DistanceY", -1, 1, 68, 1, 2.595612),
    Sketcher.Constraint("DistanceY", -1, 1, 70, 2, 7.121312),
    Sketcher.Constraint("DistanceY", -1, 1, 76, 1, 16.14648),
    Sketcher.Constraint("DistanceY", -1, 1, 79, 2, 15.22165),
    Sketcher.Constraint("DistanceX", -1, 1, 82, 2, 9.02598),
    Sketcher.Constraint("DistanceY", -1, 1, 83, 2, 12.64426),
    Sketcher.Constraint("DistanceX", -1, 1, 84, 1, 12.02732),
    Sketcher.Constraint("DistanceX", -1, 1, 85, 2, 9.734872),
    Sketcher.Constraint("DistanceX", 2, 3, -1, 1, 6.503784),
    Sketcher.Constraint("DistanceX", 4, 3, -1, 1, 10.420545),
    Sketcher.Constraint("DistanceX", 9, 3, -1, 1, 0.001034),
    Sketcher.Constraint("DistanceX", 13, 3, -1, 1, 0.000406),
    Sketcher.Constraint("DistanceY", 14, 3, -1, 1, 14.822863),
    Sketcher.Constraint("DistanceY", 17, 3, -1, 1, 0.002847),
    Sketcher.Constraint("DistanceX", 21, 3, -1, 1, 0.002497),
    Sketcher.Constraint("DistanceY", 21, 3, -1, 1, 0.002223),
    Sketcher.Constraint("DistanceX", 24, 3, -1, 1, 14.939824),
    Sketcher.Constraint("DistanceX", -1, 1, 29, 3, 0.000805),
    Sketcher.Constraint("DistanceY", 32, 3, -1, 1, 13.647106),
    Sketcher.Constraint("DistanceX", -1, 1, 41, 3, 0.001765),
    Sketcher.Constraint("DistanceY", 44, 3, -1, 1, 3.627015),
    Sketcher.Constraint("DistanceX", 50, 3, -1, 1, 13.952265),
    Sketcher.Constraint("DistanceX", 53, 3, -1, 1, 0.001784),
    Sketcher.Constraint("DistanceX", -1, 1, 69, 3, 14.982998),
    Sketcher.Constraint("DistanceY", 70, 3, -1, 1, 0.001076),
    Sketcher.Constraint("DistanceX", -1, 1, 79, 3, 4.417806),
])
pad1 = body.newObject("PartDesign::Pad", "Pad")
pad1.Profile = sketch1
pad1.Length = Q("0.25 in")
pad1.Reversed = True

# Sketch on XY plane
sketch2 = body.newObject("Sketcher::SketchObject", "Sketch001")
sketch2.AttachmentSupport = (doc.getObject("XY_Plane"), [""])
sketch2.MapMode = "FlatFace"
sketch2.addGeometry([
    Part.Circle(Vector(0, 0, 0), Vector(0, 0, 1), 17),
    Part.Circle(Vector(0, 0, 0), Vector(0, 0, 1), 14),
], False)
sketch2.addConstraint([
    Sketcher.Constraint("Coincident", 0, 3, -1, 1),
    Sketcher.Constraint("Coincident", 1, 3, -1, 1),
    Sketcher.Constraint("Diameter", 1, 27.294911),
    Sketcher.Constraint("Diameter", 0, 33.063047),
])
pocket1 = body.newObject("PartDesign::Pocket", "Pocket")
pocket1.Profile = sketch2
pocket1.Length = Q("0.06 in")
body2 = doc.addObject("PartDesign::Body", "Body001")
doc.recompute()

body2.BaseFeature = body
doc.recompute()

mirroring = doc.addObject("Part::Mirroring", "Mirroring")
mirroring.Source = body
mirroring.Base = Vector(0, 0, -6.35)
mirroring.Normal = Vector(0, 0, 1)
body3 = doc.addObject("PartDesign::Body", "Body002")
body3.BaseFeature = mirroring
boolean = body2.newObject("PartDesign::Boolean", "Boolean")
boolean.Type = "Fuse"
boolean.addObjects([body3])
doc.recompute()
mirroring.Visibility = False

doc.recompute()
